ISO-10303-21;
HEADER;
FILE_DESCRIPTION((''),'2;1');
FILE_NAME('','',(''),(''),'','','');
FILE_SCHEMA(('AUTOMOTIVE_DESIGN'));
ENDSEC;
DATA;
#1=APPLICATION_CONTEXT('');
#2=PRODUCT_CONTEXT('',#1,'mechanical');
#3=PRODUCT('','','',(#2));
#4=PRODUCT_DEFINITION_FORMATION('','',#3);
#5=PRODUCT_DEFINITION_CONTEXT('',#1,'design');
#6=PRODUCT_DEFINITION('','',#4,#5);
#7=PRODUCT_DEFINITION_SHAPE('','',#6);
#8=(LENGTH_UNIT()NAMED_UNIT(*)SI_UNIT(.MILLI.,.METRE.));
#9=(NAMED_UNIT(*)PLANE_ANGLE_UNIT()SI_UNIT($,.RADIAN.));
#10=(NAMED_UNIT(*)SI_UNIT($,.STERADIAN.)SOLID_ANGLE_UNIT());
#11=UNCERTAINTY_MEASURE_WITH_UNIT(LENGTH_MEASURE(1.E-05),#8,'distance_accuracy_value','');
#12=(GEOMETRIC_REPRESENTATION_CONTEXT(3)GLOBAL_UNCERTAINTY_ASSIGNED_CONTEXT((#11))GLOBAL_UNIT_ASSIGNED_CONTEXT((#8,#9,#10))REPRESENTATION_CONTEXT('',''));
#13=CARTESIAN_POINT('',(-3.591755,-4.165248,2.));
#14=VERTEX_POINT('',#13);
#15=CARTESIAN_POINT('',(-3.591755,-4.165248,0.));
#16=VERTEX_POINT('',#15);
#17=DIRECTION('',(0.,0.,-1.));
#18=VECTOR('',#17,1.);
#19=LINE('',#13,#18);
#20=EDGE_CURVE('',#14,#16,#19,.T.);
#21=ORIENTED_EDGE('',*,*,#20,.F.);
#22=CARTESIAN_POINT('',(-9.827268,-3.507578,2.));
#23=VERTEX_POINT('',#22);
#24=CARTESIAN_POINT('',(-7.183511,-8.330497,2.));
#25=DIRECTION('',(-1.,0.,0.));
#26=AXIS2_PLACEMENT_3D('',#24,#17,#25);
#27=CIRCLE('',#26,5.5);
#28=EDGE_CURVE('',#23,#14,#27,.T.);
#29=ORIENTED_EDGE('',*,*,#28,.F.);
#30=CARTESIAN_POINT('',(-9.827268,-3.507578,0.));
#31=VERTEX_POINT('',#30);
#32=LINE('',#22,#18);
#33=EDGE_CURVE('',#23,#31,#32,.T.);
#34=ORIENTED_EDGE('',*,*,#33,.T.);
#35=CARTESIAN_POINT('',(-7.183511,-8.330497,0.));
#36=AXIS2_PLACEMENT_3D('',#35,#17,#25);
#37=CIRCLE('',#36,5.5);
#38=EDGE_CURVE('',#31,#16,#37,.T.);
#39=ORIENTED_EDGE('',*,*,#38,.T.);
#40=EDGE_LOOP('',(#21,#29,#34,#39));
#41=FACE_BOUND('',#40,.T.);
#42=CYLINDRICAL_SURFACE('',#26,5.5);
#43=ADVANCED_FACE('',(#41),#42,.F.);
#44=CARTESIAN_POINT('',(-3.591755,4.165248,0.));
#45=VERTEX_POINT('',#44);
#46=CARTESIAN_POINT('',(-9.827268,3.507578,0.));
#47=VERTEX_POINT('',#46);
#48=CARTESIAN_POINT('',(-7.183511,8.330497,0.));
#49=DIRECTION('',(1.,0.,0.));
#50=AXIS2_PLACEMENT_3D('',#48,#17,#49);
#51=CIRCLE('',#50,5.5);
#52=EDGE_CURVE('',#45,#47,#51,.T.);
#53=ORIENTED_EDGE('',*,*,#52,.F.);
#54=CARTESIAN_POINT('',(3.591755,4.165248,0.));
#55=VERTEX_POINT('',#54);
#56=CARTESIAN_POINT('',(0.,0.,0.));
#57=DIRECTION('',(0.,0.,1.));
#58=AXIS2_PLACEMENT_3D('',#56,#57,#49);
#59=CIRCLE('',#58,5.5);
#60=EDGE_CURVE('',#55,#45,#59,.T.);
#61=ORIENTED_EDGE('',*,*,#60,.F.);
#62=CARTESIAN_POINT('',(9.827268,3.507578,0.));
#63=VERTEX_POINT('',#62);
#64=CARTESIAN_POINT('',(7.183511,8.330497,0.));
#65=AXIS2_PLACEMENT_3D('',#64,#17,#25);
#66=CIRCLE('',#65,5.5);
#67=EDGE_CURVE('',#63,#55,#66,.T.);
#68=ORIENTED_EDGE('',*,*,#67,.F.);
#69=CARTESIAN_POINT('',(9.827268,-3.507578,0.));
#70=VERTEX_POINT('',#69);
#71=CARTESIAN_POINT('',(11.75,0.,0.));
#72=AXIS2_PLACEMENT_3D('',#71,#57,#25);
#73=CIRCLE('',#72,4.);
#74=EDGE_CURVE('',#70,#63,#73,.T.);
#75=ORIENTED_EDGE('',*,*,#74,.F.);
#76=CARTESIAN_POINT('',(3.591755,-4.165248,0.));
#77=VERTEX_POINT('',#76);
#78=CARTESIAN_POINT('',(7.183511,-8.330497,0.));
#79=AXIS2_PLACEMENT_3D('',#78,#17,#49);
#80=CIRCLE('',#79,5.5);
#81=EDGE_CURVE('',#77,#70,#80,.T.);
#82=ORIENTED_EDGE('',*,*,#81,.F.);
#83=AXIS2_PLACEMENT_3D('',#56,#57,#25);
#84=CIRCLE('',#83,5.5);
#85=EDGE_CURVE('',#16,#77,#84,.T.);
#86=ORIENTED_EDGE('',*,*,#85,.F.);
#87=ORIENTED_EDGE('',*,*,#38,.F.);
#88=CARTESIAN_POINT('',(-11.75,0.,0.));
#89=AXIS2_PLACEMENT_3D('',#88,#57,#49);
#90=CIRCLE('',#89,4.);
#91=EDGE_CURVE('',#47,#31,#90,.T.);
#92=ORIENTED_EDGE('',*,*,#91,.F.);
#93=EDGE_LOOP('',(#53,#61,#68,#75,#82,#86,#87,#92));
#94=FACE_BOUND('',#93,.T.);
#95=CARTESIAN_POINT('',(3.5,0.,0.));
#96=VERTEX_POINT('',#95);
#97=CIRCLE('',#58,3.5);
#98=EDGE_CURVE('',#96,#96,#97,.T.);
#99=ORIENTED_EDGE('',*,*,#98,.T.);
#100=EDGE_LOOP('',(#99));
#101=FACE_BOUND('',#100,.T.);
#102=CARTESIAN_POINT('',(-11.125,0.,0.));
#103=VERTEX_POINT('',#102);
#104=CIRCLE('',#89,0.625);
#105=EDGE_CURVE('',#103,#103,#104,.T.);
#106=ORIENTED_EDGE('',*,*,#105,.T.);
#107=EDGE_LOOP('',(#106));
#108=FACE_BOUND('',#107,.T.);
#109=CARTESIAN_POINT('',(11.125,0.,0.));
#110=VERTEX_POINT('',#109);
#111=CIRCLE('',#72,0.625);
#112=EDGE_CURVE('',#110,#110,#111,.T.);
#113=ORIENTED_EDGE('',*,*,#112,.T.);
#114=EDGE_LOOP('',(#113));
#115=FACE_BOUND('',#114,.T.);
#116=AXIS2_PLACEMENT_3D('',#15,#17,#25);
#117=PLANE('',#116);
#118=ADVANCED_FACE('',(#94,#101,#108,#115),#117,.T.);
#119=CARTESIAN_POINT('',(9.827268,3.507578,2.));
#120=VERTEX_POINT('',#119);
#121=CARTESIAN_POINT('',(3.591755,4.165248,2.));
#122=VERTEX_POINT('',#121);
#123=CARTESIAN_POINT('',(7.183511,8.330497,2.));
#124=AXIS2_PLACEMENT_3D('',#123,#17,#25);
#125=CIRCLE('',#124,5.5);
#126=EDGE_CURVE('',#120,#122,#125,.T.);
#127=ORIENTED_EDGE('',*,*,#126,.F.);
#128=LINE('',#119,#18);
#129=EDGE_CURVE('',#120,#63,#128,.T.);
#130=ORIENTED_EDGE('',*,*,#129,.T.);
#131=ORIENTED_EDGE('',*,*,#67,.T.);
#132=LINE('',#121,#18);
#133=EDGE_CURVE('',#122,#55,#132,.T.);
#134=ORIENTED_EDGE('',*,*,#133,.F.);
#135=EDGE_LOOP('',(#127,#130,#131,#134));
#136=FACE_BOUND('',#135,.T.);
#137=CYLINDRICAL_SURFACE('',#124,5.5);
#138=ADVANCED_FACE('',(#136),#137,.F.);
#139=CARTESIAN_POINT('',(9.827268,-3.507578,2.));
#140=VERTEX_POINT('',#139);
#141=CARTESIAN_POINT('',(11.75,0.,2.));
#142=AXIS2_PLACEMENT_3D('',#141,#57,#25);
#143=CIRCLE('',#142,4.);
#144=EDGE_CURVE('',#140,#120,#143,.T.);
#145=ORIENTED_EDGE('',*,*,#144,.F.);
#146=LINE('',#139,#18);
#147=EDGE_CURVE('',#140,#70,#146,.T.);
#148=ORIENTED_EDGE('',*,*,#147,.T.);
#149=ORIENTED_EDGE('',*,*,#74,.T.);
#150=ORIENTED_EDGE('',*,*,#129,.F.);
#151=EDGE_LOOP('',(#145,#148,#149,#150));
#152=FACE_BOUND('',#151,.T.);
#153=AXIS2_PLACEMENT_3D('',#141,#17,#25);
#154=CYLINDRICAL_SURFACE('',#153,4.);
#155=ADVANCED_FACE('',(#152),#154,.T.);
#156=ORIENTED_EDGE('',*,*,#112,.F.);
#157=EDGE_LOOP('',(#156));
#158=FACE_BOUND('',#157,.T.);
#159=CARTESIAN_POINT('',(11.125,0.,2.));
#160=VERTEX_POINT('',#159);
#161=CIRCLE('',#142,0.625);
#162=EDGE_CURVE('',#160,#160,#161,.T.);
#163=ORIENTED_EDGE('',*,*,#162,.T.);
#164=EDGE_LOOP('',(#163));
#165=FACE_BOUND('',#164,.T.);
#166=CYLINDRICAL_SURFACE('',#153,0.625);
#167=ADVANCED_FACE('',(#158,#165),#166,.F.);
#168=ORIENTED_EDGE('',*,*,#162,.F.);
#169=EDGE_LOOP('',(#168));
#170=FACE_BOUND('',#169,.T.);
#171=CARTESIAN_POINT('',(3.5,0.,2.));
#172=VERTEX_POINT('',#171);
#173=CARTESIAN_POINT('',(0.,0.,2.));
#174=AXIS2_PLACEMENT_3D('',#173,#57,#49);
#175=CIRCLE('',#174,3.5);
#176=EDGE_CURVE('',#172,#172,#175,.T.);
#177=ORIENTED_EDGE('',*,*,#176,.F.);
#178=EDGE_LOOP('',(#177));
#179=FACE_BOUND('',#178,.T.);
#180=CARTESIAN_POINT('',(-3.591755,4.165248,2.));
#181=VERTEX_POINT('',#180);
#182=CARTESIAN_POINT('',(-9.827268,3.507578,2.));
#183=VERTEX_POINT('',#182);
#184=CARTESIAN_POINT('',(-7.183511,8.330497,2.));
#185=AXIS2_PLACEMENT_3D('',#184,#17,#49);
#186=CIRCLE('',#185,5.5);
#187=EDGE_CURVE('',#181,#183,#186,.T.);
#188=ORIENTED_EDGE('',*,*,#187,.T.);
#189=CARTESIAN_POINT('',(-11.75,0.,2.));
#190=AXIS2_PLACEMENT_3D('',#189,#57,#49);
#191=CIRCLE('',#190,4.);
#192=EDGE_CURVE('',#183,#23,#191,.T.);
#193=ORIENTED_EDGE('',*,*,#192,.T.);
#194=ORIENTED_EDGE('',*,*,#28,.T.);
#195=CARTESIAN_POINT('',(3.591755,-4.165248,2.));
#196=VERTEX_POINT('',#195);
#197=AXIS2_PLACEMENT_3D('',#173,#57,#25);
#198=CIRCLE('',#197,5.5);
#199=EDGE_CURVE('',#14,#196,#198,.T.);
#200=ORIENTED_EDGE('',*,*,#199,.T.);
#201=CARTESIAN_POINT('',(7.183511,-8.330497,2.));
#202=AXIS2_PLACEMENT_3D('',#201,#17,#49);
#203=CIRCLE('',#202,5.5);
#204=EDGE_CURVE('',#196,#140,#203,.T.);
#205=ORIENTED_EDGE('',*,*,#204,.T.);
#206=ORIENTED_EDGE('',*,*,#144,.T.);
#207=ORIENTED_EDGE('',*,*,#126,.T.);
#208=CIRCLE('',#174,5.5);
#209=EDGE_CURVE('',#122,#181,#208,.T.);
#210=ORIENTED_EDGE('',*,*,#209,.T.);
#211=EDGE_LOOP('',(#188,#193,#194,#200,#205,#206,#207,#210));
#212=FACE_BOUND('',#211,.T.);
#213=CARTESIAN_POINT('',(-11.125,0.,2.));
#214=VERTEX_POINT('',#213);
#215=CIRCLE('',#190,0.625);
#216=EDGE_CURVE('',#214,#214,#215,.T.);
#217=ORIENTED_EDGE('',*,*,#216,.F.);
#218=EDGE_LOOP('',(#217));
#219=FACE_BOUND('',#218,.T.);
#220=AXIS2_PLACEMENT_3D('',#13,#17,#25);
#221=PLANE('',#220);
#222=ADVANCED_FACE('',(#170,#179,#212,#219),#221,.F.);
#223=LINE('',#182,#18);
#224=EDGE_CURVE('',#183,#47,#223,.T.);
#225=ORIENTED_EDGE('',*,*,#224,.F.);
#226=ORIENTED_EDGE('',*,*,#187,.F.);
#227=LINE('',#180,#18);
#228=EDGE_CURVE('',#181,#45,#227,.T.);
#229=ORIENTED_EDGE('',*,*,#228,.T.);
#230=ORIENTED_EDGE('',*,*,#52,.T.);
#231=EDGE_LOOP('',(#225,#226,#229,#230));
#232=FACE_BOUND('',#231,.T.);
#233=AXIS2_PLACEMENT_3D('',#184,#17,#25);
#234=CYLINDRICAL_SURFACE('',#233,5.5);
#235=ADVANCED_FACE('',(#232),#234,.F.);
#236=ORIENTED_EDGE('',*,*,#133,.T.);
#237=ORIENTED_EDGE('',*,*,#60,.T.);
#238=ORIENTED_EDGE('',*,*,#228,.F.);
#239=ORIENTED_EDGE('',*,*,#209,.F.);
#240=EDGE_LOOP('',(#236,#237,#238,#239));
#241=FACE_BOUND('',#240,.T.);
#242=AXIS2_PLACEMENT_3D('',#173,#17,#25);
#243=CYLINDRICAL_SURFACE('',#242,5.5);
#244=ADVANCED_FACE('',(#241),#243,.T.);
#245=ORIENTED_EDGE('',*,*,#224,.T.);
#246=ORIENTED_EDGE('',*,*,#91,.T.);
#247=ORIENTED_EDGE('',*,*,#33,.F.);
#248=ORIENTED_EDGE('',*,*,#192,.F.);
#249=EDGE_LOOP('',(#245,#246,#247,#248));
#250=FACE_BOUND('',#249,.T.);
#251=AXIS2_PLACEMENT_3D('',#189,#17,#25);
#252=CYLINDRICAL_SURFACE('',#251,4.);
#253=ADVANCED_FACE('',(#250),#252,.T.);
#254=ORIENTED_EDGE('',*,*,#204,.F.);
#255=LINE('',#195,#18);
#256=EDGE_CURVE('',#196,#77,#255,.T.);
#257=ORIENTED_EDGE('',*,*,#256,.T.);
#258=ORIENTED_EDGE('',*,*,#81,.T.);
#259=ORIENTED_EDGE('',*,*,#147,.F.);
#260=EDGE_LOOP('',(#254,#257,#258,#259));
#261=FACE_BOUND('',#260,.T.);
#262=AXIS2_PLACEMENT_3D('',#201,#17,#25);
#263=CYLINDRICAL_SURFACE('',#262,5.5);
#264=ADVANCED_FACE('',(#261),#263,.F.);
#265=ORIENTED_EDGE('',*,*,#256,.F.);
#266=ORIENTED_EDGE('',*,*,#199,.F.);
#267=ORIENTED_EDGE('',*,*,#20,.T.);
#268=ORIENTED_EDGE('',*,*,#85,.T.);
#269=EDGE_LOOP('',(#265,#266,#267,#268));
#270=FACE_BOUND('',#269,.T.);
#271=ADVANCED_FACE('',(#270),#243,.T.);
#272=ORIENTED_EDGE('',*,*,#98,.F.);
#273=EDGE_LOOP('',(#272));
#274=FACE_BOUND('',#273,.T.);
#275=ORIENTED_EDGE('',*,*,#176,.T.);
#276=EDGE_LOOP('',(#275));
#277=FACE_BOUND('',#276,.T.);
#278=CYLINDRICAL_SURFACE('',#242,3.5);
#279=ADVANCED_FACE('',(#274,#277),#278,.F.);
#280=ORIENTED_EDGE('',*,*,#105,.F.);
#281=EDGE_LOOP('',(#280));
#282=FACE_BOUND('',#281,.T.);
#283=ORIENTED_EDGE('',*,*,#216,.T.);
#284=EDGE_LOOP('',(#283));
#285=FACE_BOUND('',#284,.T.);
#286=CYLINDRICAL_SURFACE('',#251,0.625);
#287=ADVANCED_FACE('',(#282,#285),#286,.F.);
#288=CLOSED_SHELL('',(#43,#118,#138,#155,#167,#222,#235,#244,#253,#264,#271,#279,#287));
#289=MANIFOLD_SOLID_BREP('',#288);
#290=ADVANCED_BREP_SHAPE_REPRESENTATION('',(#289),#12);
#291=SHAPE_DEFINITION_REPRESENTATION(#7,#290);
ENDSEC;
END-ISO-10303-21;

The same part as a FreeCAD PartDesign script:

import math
import FreeCAD as App
import Part
import Sketcher

V = App.Vector

doc = App.newDocument("Part")
params = doc.addObject("Spreadsheet::Sheet", "Params")
for row, (alias, value) in enumerate([
    ("sketch1_diameter", "7 mm"),
    ("sketch1_radius", "4 mm"),
    ("sketch1_radius2", "5.5 mm"),
    ("sketch1_diameter2", "1.25 mm"),
    ("pad1_length", "2 mm"),
], start=1):
    params.set(f"A{row}", alias)
    params.set(f"B{row}", "=" + value)
    params.setAlias(f"B{row}", alias)

body = doc.addObject("PartDesign::Body", "Body")

# Sketch on XY plane
sketch1 = body.newObject("Sketcher::SketchObject", "Sketch")
sketch1.AttachmentSupport = (doc.getObject("XY_Plane"), [""])
sketch1.MapMode = "FlatFace"
sketch1.addGeometry([
    Part.ArcOfCircle(Part.Circle(V(-11.8, 0, 0), V(0, 0, 1), 4), math.radians(61), math.radians(299)),  # 0
    Part.ArcOfCircle(Part.Circle(V(-7.2, -8.3, 0), V(0, 0, 1), 5.5), math.radians(49), math.radians(119)),  # 1
    Part.ArcOfCircle(Part.Circle(V(0, 0, 0), V(0, 0, 1), 5.5), math.radians(-131), math.radians(-49)),  # 2
    Part.ArcOfCircle(Part.Circle(V(7.2, -8.3, 0), V(0, 0, 1), 5.5), math.radians(61), math.radians(131)),  # 3
    Part.ArcOfCircle(Part.Circle(V(11.8, 0, 0), V(0, 0, 1), 4), math.radians(-119), math.radians(119)),  # 4
    Part.ArcOfCircle(Part.Circle(V(7.2, 8.3, 0), V(0, 0, 1), 5.5), math.radians(-131), math.radians(-61)),  # 5
    Part.ArcOfCircle(Part.Circle(V(0, 0, 0), V(0, 0, 1), 5.5), math.radians(49), math.radians(131)),  # 6
    Part.ArcOfCircle(Part.Circle(V(-7.2, 8.3, 0), V(0, 0, 1), 5.5), math.radians(-119), math.radians(-49)),  # 7
    Part.Circle(V(-11.8, 0, 0), V(0, 0, 1), 0.6),  # 8
    Part.Circle(V(0, 0, 0), V(0, 0, 1), 3.5),  # 9
    Part.Circle(V(11.8, 0, 0), V(0, 0, 1), 0.6),  # 10
], False)
sketch1.addConstraint([
    Sketcher.Constraint("Tangent", 0, 2, 1, 2),
    Sketcher.Constraint("Tangent", 1, 1, 2, 1),
    Sketcher.Constraint("Tangent", 2, 2, 3, 2),
    Sketcher.Constraint("Tangent", 3, 1, 4, 1),
    Sketcher.Constraint("Tangent", 4, 2, 5, 2),
    Sketcher.Constraint("Tangent", 5, 1, 6, 1),
    Sketcher.Constraint("Tangent", 6, 2, 7, 2),
    Sketcher.Constraint("Tangent", 7, 1, 0, 1),
    Sketcher.Constraint("Coincident", 2, 3, -1, 1),
    Sketcher.Constraint("Coincident", 6, 3, -1, 1),
    Sketcher.Constraint("Coincident", 9, 3, -1, 1),
    Sketcher.Constraint("Coincident", 8, 3, 0, 3),
    Sketcher.Constraint("Coincident", 10, 3, 4, 3),
    Sketcher.Constraint("Equal", 1, 2),
    Sketcher.Constraint("Equal", 2, 3),
    Sketcher.Constraint("Equal", 0, 4),
    Sketcher.Constraint("Equal", 3, 5),
    Sketcher.Constraint("Equal", 5, 6),
    Sketcher.Constraint("Equal", 6, 7),
    Sketcher.Constraint("Equal", 8, 10),
    Sketcher.Constraint("Symmetric", 0, 3, 4, 3, -1, 1),
    Sketcher.Constraint("PointOnObject", 0, 3, -1),
    Sketcher.Constraint("Diameter", 9, 7.0),
    Sketcher.Constraint("Radius", 0, 4.0),
    Sketcher.Constraint("Radius", 1, 5.5),
    Sketcher.Constraint("Diameter", 8, 1.25),
    Sketcher.Constraint("DistanceX", 0, 3, 4, 3, 23.5),
])
sketch1.setExpression("Constraints[22]", "Params.sketch1_diameter")
sketch1.setExpression("Constraints[23]", "Params.sketch1_radius")
sketch1.setExpression("Constraints[24]", "Params.sketch1_radius2")
sketch1.setExpression("Constraints[25]", "Params.sketch1_diameter2")
pad1 = body.newObject("PartDesign::Pad", "Pad")
pad1.Profile = sketch1
pad1.setExpression("Length", "Params.pad1_length")

doc.recompute()
